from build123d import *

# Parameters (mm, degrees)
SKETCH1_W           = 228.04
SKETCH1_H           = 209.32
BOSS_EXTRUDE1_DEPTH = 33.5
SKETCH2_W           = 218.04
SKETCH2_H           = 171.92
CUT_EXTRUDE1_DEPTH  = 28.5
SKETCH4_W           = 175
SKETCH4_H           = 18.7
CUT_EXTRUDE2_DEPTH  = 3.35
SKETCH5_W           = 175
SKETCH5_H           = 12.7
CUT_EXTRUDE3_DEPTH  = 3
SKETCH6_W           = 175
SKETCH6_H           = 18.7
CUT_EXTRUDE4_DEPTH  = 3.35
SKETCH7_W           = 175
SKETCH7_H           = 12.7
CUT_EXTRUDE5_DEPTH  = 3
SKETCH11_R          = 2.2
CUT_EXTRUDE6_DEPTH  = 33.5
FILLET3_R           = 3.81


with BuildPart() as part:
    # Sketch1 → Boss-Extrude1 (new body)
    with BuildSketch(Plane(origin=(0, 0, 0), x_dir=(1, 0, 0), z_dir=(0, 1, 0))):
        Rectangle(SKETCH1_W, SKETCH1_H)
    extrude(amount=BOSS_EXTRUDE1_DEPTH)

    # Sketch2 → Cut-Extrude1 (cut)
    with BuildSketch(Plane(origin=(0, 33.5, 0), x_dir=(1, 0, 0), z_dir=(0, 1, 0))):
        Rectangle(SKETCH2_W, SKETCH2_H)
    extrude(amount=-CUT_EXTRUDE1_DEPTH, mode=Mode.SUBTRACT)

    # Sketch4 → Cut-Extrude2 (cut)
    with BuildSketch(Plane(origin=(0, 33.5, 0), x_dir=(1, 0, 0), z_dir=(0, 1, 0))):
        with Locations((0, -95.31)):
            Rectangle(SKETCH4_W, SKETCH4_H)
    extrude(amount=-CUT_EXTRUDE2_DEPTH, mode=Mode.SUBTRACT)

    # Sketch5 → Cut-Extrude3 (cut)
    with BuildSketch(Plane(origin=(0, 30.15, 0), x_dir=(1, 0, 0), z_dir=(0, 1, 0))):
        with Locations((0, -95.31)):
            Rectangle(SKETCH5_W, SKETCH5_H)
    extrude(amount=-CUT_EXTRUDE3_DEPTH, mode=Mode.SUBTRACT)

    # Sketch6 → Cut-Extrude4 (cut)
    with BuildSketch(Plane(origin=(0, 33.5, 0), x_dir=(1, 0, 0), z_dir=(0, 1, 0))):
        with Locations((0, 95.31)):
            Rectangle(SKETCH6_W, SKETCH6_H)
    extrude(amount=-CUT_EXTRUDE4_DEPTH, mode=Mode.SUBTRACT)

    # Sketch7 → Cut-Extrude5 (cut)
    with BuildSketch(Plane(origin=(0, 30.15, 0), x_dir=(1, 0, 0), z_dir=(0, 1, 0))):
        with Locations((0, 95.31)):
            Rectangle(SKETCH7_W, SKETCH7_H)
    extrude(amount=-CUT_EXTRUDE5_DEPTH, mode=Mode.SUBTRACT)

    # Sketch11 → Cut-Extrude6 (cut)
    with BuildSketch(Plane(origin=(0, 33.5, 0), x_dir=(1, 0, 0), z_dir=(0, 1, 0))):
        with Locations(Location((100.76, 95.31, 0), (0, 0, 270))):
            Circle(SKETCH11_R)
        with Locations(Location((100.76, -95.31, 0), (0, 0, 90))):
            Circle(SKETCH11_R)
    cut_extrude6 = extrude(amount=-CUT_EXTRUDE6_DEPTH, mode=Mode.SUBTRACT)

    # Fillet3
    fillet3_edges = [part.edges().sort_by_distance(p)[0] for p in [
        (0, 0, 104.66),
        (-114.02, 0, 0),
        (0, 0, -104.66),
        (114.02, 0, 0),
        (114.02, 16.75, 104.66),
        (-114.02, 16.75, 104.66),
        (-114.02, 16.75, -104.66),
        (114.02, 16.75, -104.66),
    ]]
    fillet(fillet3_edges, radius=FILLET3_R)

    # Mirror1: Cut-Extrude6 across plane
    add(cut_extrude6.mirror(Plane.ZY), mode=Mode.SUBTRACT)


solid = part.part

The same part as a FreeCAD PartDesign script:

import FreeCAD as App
import Part
import Sketcher

V = App.Vector


def edges_at(feature, points):
    """Names of the edges that pass closest to the given points."""
    edges = feature.Shape.Edges
    near = lambda p: min(range(len(edges)), key=lambda i: edges[i].distToShape(Part.Vertex(*p))[0])
    return sorted({f"Edge{near(p) + 1}" for p in points})


def add_polygon(sketch, points):
    """Adds a closed chain of lines whose ends are joined by coincident constraints."""
    first, n = sketch.GeometryCount, len(points)
    for a, b in zip(points, points[1:] + points[:1]):
        sketch.addGeometry(Part.LineSegment(App.Vector(*a, 0), App.Vector(*b, 0)), False)
    for i in range(n):
        sketch.addConstraint(Sketcher.Constraint("Coincident", first + i, 2, first + (i + 1) % n, 1))

doc = App.newDocument("Part")
body = doc.addObject("PartDesign::Body", "Body")

sketch1 = doc.addObject("Sketcher::SketchObject", "Sketch")
body.addObject(sketch1)
sketch1.AttachmentSupport = (doc.XZ_Plane, [""])
sketch1.MapMode = "FlatFace"
add_polygon(sketch1, [(-114, -105), (-114, 105), (114, 105), (114, -105)])
sketch1.addConstraint(Sketcher.Constraint("Vertical", 0))
sketch1.addConstraint(Sketcher.Constraint("Horizontal", 1))
sketch1.addConstraint(Sketcher.Constraint("Vertical", 2))
sketch1.addConstraint(Sketcher.Constraint("Horizontal", 3))
sketch1.addConstraint(Sketcher.Constraint("Symmetric", 0, 2, 2, 2, -1, 1))
sketch1.addConstraint(Sketcher.Constraint("DistanceX", 1, 1, 1, 2, 228.04))
sketch1.addConstraint(Sketcher.Constraint("DistanceY", 0, 1, 0, 2, 209.32))
pad1 = doc.addObject("PartDesign::Pad", "Pad")
body.addObject(pad1)
pad1.Profile = sketch1
pad1.Length = 33.5
pad1.Reversed = True

sketch2 = doc.addObject("Sketcher::SketchObject", "Sketch001")
body.addObject(sketch2)
sketch2.AttachmentSupport = (doc.XZ_Plane, [""])
sketch2.MapMode = "FlatFace"
sketch2.AttachmentOffset = App.Placement(V(0, 0, -33.5), App.Rotation())
add_polygon(sketch2, [(-109, -86), (-109, 86), (109, 86), (109, -86)])
sketch2.addConstraint(Sketcher.Constraint("Vertical", 0))
sketch2.addConstraint(Sketcher.Constraint("Horizontal", 1))
sketch2.addConstraint(Sketcher.Constraint("Vertical", 2))
sketch2.addConstraint(Sketcher.Constraint("Horizontal", 3))
sketch2.addConstraint(Sketcher.Constraint("Symmetric", 0, 2, 2, 2, -1, 1))
sketch2.addConstraint(Sketcher.Constraint("DistanceX", 1, 1, 1, 2, 218.04))
sketch2.addConstraint(Sketcher.Constraint("DistanceY", 0, 1, 0, 2, 171.92))
pocket1 = doc.addObject("PartDesign::Pocket", "Pocket")
body.addObject(pocket1)
pocket1.Profile = sketch2
pocket1.Length = 28.5
pocket1.Reversed = True

sketch3 = doc.addObject("Sketcher::SketchObject", "Sketch002")
body.addObject(sketch3)
sketch3.AttachmentSupport = (doc.XZ_Plane, [""])
sketch3.MapMode = "FlatFace"
sketch3.AttachmentOffset = App.Placement(V(0, 0, -33.5), App.Rotation())
add_polygon(sketch3, [(-88, 86), (-88, 105), (88, 105), (88, 86)])
sketch3.addConstraint(Sketcher.Constraint("Vertical", 0))
sketch3.addConstraint(Sketcher.Constraint("Horizontal", 1))
sketch3.addConstraint(Sketcher.Constraint("Vertical", 2))
sketch3.addConstraint(Sketcher.Constraint("Horizontal", 3))
sketch3.addConstraint(Sketcher.Constraint("DistanceX", 1, 1, 1, 2, 175.0))
sketch3.addConstraint(Sketcher.Constraint("DistanceY", 0, 1, 0, 2, 18.7))
sketch3.addConstraint(Sketcher.Constraint("DistanceX", 0, 2, -1, 1, 87.5))
sketch3.addConstraint(Sketcher.Constraint("DistanceY", -1, 1, 0, 2, 104.66))
pocket2 = doc.addObject("PartDesign::Pocket", "Pocket001")
body.addObject(pocket2)
pocket2.Profile = sketch3
pocket2.Length = 3.35
pocket2.Reversed = True

sketch4 = doc.addObject("Sketcher::SketchObject", "Sketch003")
body.addObject(sketch4)
sketch4.AttachmentSupport = (doc.XZ_Plane, [""])
sketch4.MapMode = "FlatFace"
sketch4.AttachmentOffset = App.Placement(V(0, 0, -30.15), App.Rotation())
add_polygon(sketch4, [(-88, 89), (-88, 102), (88, 102), (88, 89)])
sketch4.addConstraint(Sketcher.Constraint("Vertical", 0))
sketch4.addConstraint(Sketcher.Constraint("Horizontal", 1))
sketch4.addConstraint(Sketcher.Constraint("Vertical", 2))
sketch4.addConstraint(Sketcher.Constraint("Horizontal", 3))
sketch4.addConstraint(Sketcher.Constraint("DistanceX", 1, 1, 1, 2, 175.0))
sketch4.addConstraint(Sketcher.Constraint("DistanceY", 0, 1, 0, 2, 12.7))
sketch4.addConstraint(Sketcher.Constraint("DistanceX", 0, 2, -1, 1, 87.5))
sketch4.addConstraint(Sketcher.Constraint("DistanceY", -1, 1, 0, 2, 101.66))
pocket3 = doc.addObject("PartDesign::Pocket", "Pocket002")
body.addObject(pocket3)
pocket3.Profile = sketch4
pocket3.Length = 3
pocket3.Reversed = True

sketch5 = doc.addObject("Sketcher::SketchObject", "Sketch004")
body.addObject(sketch5)
sketch5.AttachmentSupport = (doc.XZ_Plane, [""])
sketch5.MapMode = "FlatFace"
sketch5.AttachmentOffset = App.Placement(V(0, 0, -33.5), App.Rotation())
add_polygon(sketch5, [(-88, -105), (-88, -86), (88, -86), (88, -105)])
sketch5.addConstraint(Sketcher.Constraint("Vertical", 0))
sketch5.addConstraint(Sketcher.Constraint("Horizontal", 1))
sketch5.addConstraint(Sketcher.Constraint("Vertical", 2))
sketch5.addConstraint(Sketcher.Constraint("Horizontal", 3))
sketch5.addConstraint(Sketcher.Constraint("DistanceX", 1, 1, 1, 2, 175.0))
sketch5.addConstraint(Sketcher.Constraint("DistanceY", 0, 1, 0, 2, 18.7))
sketch5.addConstraint(Sketcher.Constraint("DistanceX", 0, 2, -1, 1, 87.5))
sketch5.addConstraint(Sketcher.Constraint("DistanceY", 0, 2, -1, 1, 85.96))
pocket4 = doc.addObject("PartDesign::Pocket", "Pocket003")
body.addObject(pocket4)
pocket4.Profile = sketch5
pocket4.Length = 3.35
pocket4.Reversed = True

sketch6 = doc.addObject("Sketcher::SketchObject", "Sketch005")
body.addObject(sketch6)
sketch6.AttachmentSupport = (doc.XZ_Plane, [""])
sketch6.MapMode = "FlatFace"
sketch6.AttachmentOffset = App.Placement(V(0, 0, -30.15), App.Rotation())
add_polygon(sketch6, [(-88, -102), (-88, -89), (88, -89), (88, -102)])
sketch6.addConstraint(Sketcher.Constraint("Vertical", 0))
sketch6.addConstraint(Sketcher.Constraint("Horizontal", 1))
sketch6.addConstraint(Sketcher.Constraint("Vertical", 2))
sketch6.addConstraint(Sketcher.Constraint("Horizontal", 3))
sketch6.addConstraint(Sketcher.Constraint("DistanceX", 1, 1, 1, 2, 175.0))
sketch6.addConstraint(Sketcher.Constraint("DistanceY", 0, 1, 0, 2, 12.7))
sketch6.addConstraint(Sketcher.Constraint("DistanceX", 0, 2, -1, 1, 87.5))
sketch6.addConstraint(Sketcher.Constraint("DistanceY", 0, 2, -1, 1, 88.96))
pocket5 = doc.addObject("PartDesign::Pocket", "Pocket004")
body.addObject(pocket5)
pocket5.Profile = sketch6
pocket5.Length = 3
pocket5.Reversed = True

sketch7 = doc.addObject("Sketcher::SketchObject", "Sketch006")
body.addObject(sketch7)
sketch7.AttachmentSupport = (doc.XZ_Plane, [""])
sketch7.MapMode = "FlatFace"
sketch7.AttachmentOffset = App.Placement(V(0, 0, -33.5), App.Rotation())
sketch7.addGeometry(Part.Circle(V(100.8, -95.3, 0), V(0, 0, 1), 2.2), False)
sketch7.addGeometry(Part.Circle(V(100.8, 95.3, 0), V(0, 0, 1), 2.2), False)
sketch7.addConstraint(Sketcher.Constraint("Equal", 0, 1))
sketch7.addConstraint(Sketcher.Constraint("Symmetric", 0, 3, 1, 3, -1))
sketch7.addConstraint(Sketcher.Constraint("Diameter", 0, 4.4))
sketch7.addConstraint(Sketcher.Constraint("DistanceX", -1, 1, 0, 3, 100.76))
sketch7.addConstraint(Sketcher.Constraint("DistanceY", 0, 3, -1, 1, 95.31))
pocket6 = doc.addObject("PartDesign::Pocket", "Pocket005")
body.addObject(pocket6)
pocket6.Profile = sketch7
pocket6.Length = 33.5
pocket6.Reversed = True
doc.recompute()

fillet = doc.addObject("PartDesign::Fillet", "Fillet")
body.addObject(fillet)
fillet.Base = (pocket6, edges_at(pocket6, [
    (0, 0, 104.66),
    (-114.02, 0, 0),
    (0, 0, -104.66),
    (114.02, 0, 0),
    (114.02, 16.75, 104.66),
    (-114.02, 16.75, 104.66),
    (-114.02, 16.75, -104.66),
    (114.02, 16.75, -104.66),
]))
fillet.Radius = 3.81
doc.recompute()

mirrored = doc.addObject("PartDesign::Mirrored", "Mirrored")
body.addObject(mirrored)
mirrored.Originals = [pocket6]
mirrored.MirrorPlane = (doc.YZ_Plane, [""])
body.Tip = mirrored

doc.recompute()
